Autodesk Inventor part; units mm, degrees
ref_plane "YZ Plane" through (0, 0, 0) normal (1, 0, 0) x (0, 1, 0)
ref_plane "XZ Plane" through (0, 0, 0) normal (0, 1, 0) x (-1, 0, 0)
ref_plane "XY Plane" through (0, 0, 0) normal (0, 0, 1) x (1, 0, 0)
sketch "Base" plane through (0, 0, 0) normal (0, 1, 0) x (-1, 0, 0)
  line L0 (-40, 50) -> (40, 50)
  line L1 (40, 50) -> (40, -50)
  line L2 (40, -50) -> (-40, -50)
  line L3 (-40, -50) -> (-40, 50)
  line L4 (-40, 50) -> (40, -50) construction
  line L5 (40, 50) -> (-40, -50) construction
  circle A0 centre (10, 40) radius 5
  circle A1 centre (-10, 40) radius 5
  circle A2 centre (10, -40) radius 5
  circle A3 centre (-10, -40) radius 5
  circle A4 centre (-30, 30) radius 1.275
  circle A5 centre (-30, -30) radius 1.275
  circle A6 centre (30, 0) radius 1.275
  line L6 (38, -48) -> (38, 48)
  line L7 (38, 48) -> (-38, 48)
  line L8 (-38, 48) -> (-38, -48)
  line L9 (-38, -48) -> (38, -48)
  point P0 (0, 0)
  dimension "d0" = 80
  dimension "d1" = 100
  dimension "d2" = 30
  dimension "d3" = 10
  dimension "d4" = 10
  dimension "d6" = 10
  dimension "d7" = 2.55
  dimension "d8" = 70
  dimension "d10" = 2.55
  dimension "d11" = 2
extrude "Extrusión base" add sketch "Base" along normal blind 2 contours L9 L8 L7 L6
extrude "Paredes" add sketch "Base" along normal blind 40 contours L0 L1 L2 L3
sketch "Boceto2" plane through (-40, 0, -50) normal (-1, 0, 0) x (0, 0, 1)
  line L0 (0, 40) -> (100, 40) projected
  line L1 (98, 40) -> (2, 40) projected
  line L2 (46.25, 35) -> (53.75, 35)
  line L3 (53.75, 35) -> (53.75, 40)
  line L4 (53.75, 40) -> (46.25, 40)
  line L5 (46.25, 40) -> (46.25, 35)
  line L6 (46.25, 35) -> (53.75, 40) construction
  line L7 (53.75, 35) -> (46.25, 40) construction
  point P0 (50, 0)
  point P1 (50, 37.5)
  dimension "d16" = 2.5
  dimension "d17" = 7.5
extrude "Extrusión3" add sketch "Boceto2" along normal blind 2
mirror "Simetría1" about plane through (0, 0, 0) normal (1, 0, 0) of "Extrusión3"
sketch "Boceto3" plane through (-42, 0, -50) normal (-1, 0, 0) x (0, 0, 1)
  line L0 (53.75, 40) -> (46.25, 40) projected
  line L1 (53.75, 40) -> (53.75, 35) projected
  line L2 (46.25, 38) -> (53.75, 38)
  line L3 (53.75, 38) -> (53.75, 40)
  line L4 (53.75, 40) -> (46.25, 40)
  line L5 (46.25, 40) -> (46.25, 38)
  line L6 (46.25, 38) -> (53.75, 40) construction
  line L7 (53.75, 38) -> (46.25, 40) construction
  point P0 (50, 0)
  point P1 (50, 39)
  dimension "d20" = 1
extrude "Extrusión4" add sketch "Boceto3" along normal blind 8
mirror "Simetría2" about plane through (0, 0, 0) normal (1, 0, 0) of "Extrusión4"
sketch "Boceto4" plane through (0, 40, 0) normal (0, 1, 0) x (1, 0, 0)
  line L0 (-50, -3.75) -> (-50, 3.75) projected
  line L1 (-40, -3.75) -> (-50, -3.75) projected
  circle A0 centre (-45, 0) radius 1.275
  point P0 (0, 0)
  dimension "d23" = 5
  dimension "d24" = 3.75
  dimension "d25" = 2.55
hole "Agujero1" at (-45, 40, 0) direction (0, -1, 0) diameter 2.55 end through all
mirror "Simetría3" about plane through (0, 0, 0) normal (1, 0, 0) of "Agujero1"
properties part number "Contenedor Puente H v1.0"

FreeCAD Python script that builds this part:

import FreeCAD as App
import Part
import Sketcher
Q = App.Units.Quantity

doc = App.newDocument("Part")
body = doc.addObject("PartDesign::Body", "Body")

# Sketch on XZ plane
sketch1 = doc.addObject("Sketcher::SketchObject", "Sketch")
body.addObject(sketch1)
sketch1.AttachmentSupport = (doc.XZ_Plane, [""])
sketch1.MapMode = "FlatFace"
sketch1.addGeometry([
    Part.LineSegment(App.Vector(38, -48, 0), App.Vector(-38, -48, 0)),  # 0
    Part.LineSegment(App.Vector(-38, -48, 0), App.Vector(-38, 48, 0)),  # 1
    Part.LineSegment(App.Vector(-38, 48, 0), App.Vector(38, 48, 0)),  # 2
    Part.LineSegment(App.Vector(38, 48, 0), App.Vector(38, -48, 0)),  # 3
    Part.Circle(App.Vector(30, -30, 0), App.Vector(0, 0, 1), 1.3),  # 4
    Part.Circle(App.Vector(10, -40, 0), App.Vector(0, 0, 1), 5),  # 5
    Part.Circle(App.Vector(-10, -40, 0), App.Vector(0, 0, 1), 5),  # 6
    Part.Circle(App.Vector(30, 30, 0), App.Vector(0, 0, 1), 1.3),  # 7
    Part.Circle(App.Vector(10, 40, 0), App.Vector(0, 0, 1), 5),  # 8
    Part.Circle(App.Vector(-30, 0, 0), App.Vector(0, 0, 1), 1.3),  # 9
    Part.Circle(App.Vector(-10, 40, 0), App.Vector(0, 0, 1), 5),  # 10
], False)
sketch1.addConstraint([
    Sketcher.Constraint("Coincident", 0, 2, 1, 1),
    Sketcher.Constraint("Coincident", 1, 2, 2, 1),
    Sketcher.Constraint("Coincident", 2, 2, 3, 1),
    Sketcher.Constraint("Coincident", 3, 2, 0, 1),
    Sketcher.Constraint("Horizontal", 0),
    Sketcher.Constraint("Vertical", 1),
    Sketcher.Constraint("Horizontal", 2),
    Sketcher.Constraint("Vertical", 3),
    Sketcher.Constraint("Equal", 5, 6),
    Sketcher.Constraint("Equal", 4, 7),
    Sketcher.Constraint("Equal", 6, 8),
    Sketcher.Constraint("Equal", 7, 9),
    Sketcher.Constraint("Equal", 8, 10),
    Sketcher.Constraint("Symmetric", 6, 3, 8, 3, -1, 1),
    Sketcher.Constraint("Symmetric", 5, 3, 10, 3, -1, 1),
    Sketcher.Constraint("Symmetric", 0, 2, 2, 2, -1, 1),
    Sketcher.Constraint("Symmetric", 5, 3, 6, 3, -2),
    Sketcher.Constraint("Symmetric", 4, 3, 7, 3, -1),
    Sketcher.Constraint("PointOnObject", 9, 3, -1),
    Sketcher.Constraint("Diameter", 5, Q("10 mm")),
    Sketcher.Constraint("Diameter", 4, Q("2.55 mm")),
    Sketcher.Constraint("DistanceX", -1, 1, 4, 3, Q("30 mm")),
    Sketcher.Constraint("DistanceY", 4, 3, -1, 1, Q("30 mm")),
    Sketcher.Constraint("DistanceX", -1, 1, 5, 3, Q("10 mm")),
    Sketcher.Constraint("DistanceX", 9, 3, -1, 1, Q("30 mm")),
    Sketcher.Constraint("DistanceY", 5, 3, 4, 3, Q("10 mm")),
    Sketcher.Constraint("DistanceX", 0, 2, 0, 1, Q("76 mm")),
    Sketcher.Constraint("DistanceY", 1, 1, 1, 2, Q("96 mm")),
])
pad1 = doc.addObject("PartDesign::Pad", "Pad")
body.addObject(pad1)
pad1.Profile = sketch1
pad1.Length = 2
pad1.Reversed = True

# Sketch on XZ plane
sketch2 = doc.addObject("Sketcher::SketchObject", "Sketch001")
body.addObject(sketch2)
sketch2.AttachmentSupport = (doc.XZ_Plane, [""])
sketch2.MapMode = "FlatFace"
sketch2.addGeometry([
    Part.LineSegment(App.Vector(-40, 50, 0), App.Vector(40, 50, 0)),  # 0
    Part.LineSegment(App.Vector(40, 50, 0), App.Vector(40, -50, 0)),  # 1
    Part.LineSegment(App.Vector(40, -50, 0), App.Vector(-40, -50, 0)),  # 2
    Part.LineSegment(App.Vector(-40, -50, 0), App.Vector(-40, 50, 0)),  # 3
    Part.LineSegment(App.Vector(-38, 48, 0), App.Vector(-38, -48, 0)),  # 4
    Part.LineSegment(App.Vector(-38, -48, 0), App.Vector(38, -48, 0)),  # 5
    Part.LineSegment(App.Vector(38, -48, 0), App.Vector(38, 48, 0)),  # 6
    Part.LineSegment(App.Vector(38, 48, 0), App.Vector(-38, 48, 0)),  # 7
], False)
sketch2.addConstraint([
    Sketcher.Constraint("Coincident", 0, 2, 1, 1),
    Sketcher.Constraint("Coincident", 1, 2, 2, 1),
    Sketcher.Constraint("Coincident", 2, 2, 3, 1),
    Sketcher.Constraint("Coincident", 3, 2, 0, 1),
    Sketcher.Constraint("Coincident", 4, 2, 5, 1),
    Sketcher.Constraint("Coincident", 5, 2, 6, 1),
    Sketcher.Constraint("Coincident", 6, 2, 7, 1),
    Sketcher.Constraint("Coincident", 7, 2, 4, 1),
    Sketcher.Constraint("Horizontal", 0),
    Sketcher.Constraint("Vertical", 1),
    Sketcher.Constraint("Horizontal", 2),
    Sketcher.Constraint("Vertical", 3),
    Sketcher.Constraint("Vertical", 4),
    Sketcher.Constraint("Horizontal", 5),
    Sketcher.Constraint("Vertical", 6),
    Sketcher.Constraint("Horizontal", 7),
    Sketcher.Constraint("Symmetric", 0, 2, 2, 2, -1, 1),
    Sketcher.Constraint("Symmetric", 4, 2, 6, 2, -1, 1),
    Sketcher.Constraint("DistanceX", 0, 1, 0, 2, Q("80 mm")),
    Sketcher.Constraint("DistanceY", 1, 2, 1, 1, Q("100 mm")),
    Sketcher.Constraint("DistanceX", 2, 2, 4, 2, Q("2 mm")),
    Sketcher.Constraint("DistanceY", 2, 2, 4, 2, Q("2 mm")),
])
pad2 = doc.addObject("PartDesign::Pad", "Pad001")
body.addObject(pad2)
pad2.Profile = sketch2
pad2.Length = 40
pad2.Reversed = True

# Sketch on YZ plane
sketch3 = doc.addObject("Sketcher::SketchObject", "Sketch002")
body.addObject(sketch3)
sketch3.AttachmentSupport = (doc.YZ_Plane, [""])
sketch3.MapMode = "FlatFace"
sketch3.AttachmentOffset = App.Placement(App.Vector(0, 0, -40), App.Rotation())
sketch3.addGeometry([
    Part.LineSegment(App.Vector(40, 4, 0), App.Vector(40, -4, 0)),
    Part.LineSegment(App.Vector(40, -4, 0), App.Vector(35, -4, 0)),
    Part.LineSegment(App.Vector(35, -4, 0), App.Vector(35, 4, 0)),
    Part.LineSegment(App.Vector(35, 4, 0), App.Vector(40, 4, 0)),
], False)
sketch3.addConstraint([
    Sketcher.Constraint("Coincident", 0, 2, 1, 1),
    Sketcher.Constraint("Coincident", 1, 2, 2, 1),
    Sketcher.Constraint("Coincident", 2, 2, 3, 1),
    Sketcher.Constraint("Coincident", 3, 2, 0, 1),
    Sketcher.Constraint("Vertical", 0),
    Sketcher.Constraint("Horizontal", 1),
    Sketcher.Constraint("Vertical", 2),
    Sketcher.Constraint("Horizontal", 3),
    Sketcher.Constraint("DistanceY", 0, 2, 0, 1, Q("7.5 mm")),
    Sketcher.Constraint("DistanceX", 1, 2, 1, 1, Q("5 mm")),
    Sketcher.Constraint("DistanceX", -1, 1, 0, 2, Q("40 mm")),
    Sketcher.Constraint("DistanceY", 0, 2, -1, 1, Q("3.75 mm")),
])
pad3 = doc.addObject("PartDesign::Pad", "Pad002")
body.addObject(pad3)
pad3.Profile = sketch3
pad3.Length = 2
pad3.Reversed = True
doc.recompute()

mirrored = doc.addObject("PartDesign::Mirrored", "Mirrored")
body.addObject(mirrored)
mirrored.Originals = [pad3]
mirrored.MirrorPlane = (doc.YZ_Plane, [""])
body.Tip = mirrored

# Sketch on YZ plane
sketch4 = doc.addObject("Sketcher::SketchObject", "Sketch003")
body.addObject(sketch4)
sketch4.AttachmentSupport = (doc.YZ_Plane, [""])
sketch4.MapMode = "FlatFace"
sketch4.AttachmentOffset = App.Placement(App.Vector(0, 0, -42), App.Rotation())
sketch4.addGeometry([
    Part.LineSegment(App.Vector(38, 3.8, 0), App.Vector(40, 3.8, 0)),
    Part.LineSegment(App.Vector(40, 3.8, 0), App.Vector(40, -3.8, 0)),
    Part.LineSegment(App.Vector(40, -3.8, 0), App.Vector(38, -3.8, 0)),
    Part.LineSegment(App.Vector(38, -3.8, 0), App.Vector(38, 3.8, 0)),
], False)
sketch4.addConstraint([
    Sketcher.Constraint("Coincident", 0, 2, 1, 1),
    Sketcher.Constraint("Coincident", 1, 2, 2, 1),
    Sketcher.Constraint("Coincident", 2, 2, 3, 1),
    Sketcher.Constraint("Coincident", 3, 2, 0, 1),
    Sketcher.Constraint("Horizontal", 0),
    Sketcher.Constraint("Vertical", 1),
    Sketcher.Constraint("Horizontal", 2),
    Sketcher.Constraint("Vertical", 3),
    Sketcher.Constraint("DistanceX", 0, 1, 0, 2, Q("2 mm")),
    Sketcher.Constraint("DistanceY", 1, 2, 1, 1, Q("7.5 mm")),
    Sketcher.Constraint("DistanceX", -1, 1, 0, 2, Q("40 mm")),
    Sketcher.Constraint("DistanceY", -1, 1, 0, 2, Q("3.75 mm")),
])
pad4 = doc.addObject("PartDesign::Pad", "Pad003")
body.addObject(pad4)
pad4.Profile = sketch4
pad4.Length = 8
pad4.Reversed = True
doc.recompute()

mirrored2 = doc.addObject("PartDesign::Mirrored", "Mirrored001")
body.addObject(mirrored2)
mirrored2.Originals = [pad4]
mirrored2.MirrorPlane = (doc.YZ_Plane, [""])
body.Tip = mirrored2

# Sketch on XZ plane
sketch5 = doc.addObject("Sketcher::SketchObject", "Sketch004")
body.addObject(sketch5)
sketch5.AttachmentSupport = (doc.XZ_Plane, [""])
sketch5.MapMode = "FlatFace"
sketch5.AttachmentOffset = App.Placement(App.Vector(0, 0, -40), App.Rotation())
sketch5.addGeometry(Part.Circle(App.Vector(-45, 0, 0), App.Vector(0, 0, 1), 1.3), False)
sketch5.addConstraint([
    Sketcher.Constraint("PointOnObject", 0, 3, -1),
    Sketcher.Constraint("Diameter", 0, Q("2.55 mm")),
    Sketcher.Constraint("DistanceX", 0, 3, -1, 1, Q("45 mm")),
])
doc.recompute()
hole = doc.addObject("PartDesign::Hole", "Hole")
body.addObject(hole)
hole.Profile = sketch5
hole.ThreadType = "None"
hole.Diameter = 2.55
hole.DepthType = "ThroughAll"
hole.Reversed = True
doc.recompute()

mirrored3 = doc.addObject("PartDesign::Mirrored", "Mirrored002")
body.addObject(mirrored3)
mirrored3.Originals = [hole]
mirrored3.MirrorPlane = (doc.YZ_Plane, [""])
body.Tip = mirrored3

doc.recompute()
